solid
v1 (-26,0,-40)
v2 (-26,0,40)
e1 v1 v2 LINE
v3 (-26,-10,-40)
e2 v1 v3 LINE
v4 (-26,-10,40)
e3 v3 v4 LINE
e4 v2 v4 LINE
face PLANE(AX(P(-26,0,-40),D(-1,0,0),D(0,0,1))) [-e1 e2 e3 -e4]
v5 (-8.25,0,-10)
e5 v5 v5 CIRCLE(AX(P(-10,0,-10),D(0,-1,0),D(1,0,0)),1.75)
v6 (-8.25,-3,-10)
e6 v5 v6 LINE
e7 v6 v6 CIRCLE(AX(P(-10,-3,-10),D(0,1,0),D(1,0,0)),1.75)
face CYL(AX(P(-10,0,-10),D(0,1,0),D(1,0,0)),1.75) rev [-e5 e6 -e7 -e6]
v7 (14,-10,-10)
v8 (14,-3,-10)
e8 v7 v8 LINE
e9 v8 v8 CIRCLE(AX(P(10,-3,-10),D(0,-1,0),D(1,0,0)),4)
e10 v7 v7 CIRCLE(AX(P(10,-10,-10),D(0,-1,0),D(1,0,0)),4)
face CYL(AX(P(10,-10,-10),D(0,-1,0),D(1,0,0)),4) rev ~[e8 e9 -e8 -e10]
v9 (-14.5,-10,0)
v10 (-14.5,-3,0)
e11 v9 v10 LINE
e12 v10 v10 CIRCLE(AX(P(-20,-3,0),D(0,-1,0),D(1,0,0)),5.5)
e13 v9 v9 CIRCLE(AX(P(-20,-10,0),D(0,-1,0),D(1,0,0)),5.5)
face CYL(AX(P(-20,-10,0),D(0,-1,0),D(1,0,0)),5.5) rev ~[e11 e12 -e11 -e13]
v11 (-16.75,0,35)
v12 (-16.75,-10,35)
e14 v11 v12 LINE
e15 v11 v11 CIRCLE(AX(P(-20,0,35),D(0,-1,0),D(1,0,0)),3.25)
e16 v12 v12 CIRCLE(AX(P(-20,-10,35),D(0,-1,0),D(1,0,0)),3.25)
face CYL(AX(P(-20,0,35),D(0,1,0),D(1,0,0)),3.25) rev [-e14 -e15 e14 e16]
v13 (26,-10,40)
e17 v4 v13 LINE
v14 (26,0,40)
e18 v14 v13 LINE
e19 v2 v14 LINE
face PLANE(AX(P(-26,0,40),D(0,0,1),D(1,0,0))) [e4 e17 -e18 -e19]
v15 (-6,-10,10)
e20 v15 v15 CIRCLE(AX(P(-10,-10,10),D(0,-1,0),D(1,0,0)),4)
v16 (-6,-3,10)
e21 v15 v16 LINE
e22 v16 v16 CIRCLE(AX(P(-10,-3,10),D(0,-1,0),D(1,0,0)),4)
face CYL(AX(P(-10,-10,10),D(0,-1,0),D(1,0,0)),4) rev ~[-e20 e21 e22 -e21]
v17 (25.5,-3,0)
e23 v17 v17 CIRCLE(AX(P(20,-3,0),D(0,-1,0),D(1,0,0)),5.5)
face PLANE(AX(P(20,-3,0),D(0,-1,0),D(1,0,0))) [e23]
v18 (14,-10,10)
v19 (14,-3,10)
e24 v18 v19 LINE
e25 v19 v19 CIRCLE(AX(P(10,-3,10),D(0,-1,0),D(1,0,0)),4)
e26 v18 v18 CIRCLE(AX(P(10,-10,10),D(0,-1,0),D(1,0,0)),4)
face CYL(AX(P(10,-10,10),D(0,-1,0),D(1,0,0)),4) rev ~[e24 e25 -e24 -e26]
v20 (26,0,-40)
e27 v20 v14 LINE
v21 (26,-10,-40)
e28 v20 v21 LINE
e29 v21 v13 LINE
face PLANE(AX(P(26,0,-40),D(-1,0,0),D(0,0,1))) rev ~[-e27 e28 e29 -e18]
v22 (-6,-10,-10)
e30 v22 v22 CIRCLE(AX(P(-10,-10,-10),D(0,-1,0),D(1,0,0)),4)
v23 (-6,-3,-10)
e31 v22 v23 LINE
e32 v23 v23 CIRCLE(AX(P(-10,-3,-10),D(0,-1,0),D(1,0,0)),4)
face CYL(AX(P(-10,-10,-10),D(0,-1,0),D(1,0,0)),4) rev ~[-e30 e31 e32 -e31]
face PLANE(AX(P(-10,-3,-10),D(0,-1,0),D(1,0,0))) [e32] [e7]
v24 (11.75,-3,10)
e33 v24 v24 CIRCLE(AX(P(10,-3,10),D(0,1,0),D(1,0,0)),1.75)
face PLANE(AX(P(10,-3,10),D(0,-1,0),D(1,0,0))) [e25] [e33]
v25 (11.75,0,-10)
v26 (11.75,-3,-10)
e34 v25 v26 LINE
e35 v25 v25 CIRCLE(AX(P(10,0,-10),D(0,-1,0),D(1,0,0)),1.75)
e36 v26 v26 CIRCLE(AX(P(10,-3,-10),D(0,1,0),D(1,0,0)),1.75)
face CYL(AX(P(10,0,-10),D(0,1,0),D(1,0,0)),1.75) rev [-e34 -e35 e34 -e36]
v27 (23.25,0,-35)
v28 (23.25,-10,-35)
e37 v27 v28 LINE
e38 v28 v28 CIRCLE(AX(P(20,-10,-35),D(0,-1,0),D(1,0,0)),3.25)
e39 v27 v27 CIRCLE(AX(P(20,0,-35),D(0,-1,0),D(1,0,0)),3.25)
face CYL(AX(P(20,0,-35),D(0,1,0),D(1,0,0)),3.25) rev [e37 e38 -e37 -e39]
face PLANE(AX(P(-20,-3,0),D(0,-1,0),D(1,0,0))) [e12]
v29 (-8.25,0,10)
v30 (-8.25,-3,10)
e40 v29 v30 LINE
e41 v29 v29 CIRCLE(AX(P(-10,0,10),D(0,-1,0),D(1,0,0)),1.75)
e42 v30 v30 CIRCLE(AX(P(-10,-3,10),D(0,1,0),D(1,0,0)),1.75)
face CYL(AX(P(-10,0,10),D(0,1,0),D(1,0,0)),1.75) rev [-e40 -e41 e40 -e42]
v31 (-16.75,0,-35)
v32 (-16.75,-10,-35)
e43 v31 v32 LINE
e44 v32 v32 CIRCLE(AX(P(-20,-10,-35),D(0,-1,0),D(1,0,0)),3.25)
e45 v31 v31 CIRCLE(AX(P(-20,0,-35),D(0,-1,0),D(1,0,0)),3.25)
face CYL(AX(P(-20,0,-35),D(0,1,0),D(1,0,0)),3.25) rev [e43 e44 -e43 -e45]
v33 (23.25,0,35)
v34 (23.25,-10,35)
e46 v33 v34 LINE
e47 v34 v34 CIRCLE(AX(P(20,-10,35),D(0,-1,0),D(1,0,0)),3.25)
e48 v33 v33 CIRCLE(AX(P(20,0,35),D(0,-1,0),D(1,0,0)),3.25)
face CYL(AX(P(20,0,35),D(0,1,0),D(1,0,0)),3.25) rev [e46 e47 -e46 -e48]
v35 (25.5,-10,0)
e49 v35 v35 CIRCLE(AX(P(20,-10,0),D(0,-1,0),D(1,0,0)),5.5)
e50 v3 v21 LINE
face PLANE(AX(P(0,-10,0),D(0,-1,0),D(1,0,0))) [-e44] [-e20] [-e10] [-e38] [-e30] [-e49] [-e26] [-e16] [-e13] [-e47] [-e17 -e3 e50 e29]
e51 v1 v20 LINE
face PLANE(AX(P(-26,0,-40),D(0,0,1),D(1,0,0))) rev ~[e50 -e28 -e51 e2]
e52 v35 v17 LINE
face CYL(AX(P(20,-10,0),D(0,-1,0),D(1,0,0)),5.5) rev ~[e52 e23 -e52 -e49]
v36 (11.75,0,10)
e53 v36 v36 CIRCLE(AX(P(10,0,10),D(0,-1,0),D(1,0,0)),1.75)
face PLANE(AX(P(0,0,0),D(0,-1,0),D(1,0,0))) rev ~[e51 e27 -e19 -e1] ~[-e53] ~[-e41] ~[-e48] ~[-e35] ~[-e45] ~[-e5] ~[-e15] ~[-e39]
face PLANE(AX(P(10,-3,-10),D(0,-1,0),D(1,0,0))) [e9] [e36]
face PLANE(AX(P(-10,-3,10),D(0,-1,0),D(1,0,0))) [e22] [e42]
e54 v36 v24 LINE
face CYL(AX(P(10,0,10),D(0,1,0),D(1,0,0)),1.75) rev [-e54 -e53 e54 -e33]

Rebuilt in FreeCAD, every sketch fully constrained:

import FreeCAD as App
import Part
import Sketcher


def add_polygon(sketch, points):
    """Adds a closed chain of lines whose ends are joined by coincident constraints."""
    first, n = sketch.GeometryCount, len(points)
    for a, b in zip(points, points[1:] + points[:1]):
        sketch.addGeometry(Part.LineSegment(App.Vector(*a, 0), App.Vector(*b, 0)), False)
    for i in range(n):
        sketch.addConstraint(Sketcher.Constraint("Coincident", first + i, 2, first + (i + 1) % n, 1))

doc = App.newDocument("Part")
body = doc.addObject("PartDesign::Body", "Body")

sketch1 = body.newObject("Sketcher::SketchObject", "Sketch")
sketch1.AttachmentSupport = (doc.getObject("XZ_Plane"), [""])
sketch1.MapMode = "FlatFace"
add_polygon(sketch1, [(-26, 40), (-26, -40), (26, -40), (26, 40)])
sketch1.addGeometry(Part.Circle(App.Vector(-20, -35, 0), App.Vector(0, 0, 1), 3.2), False)
sketch1.addGeometry(Part.Circle(App.Vector(-10, -10, 0), App.Vector(0, 0, 1), 1.8), False)
sketch1.addGeometry(Part.Circle(App.Vector(20, -35, 0), App.Vector(0, 0, 1), 3.2), False)
sketch1.addGeometry(Part.Circle(App.Vector(10, -10, 0), App.Vector(0, 0, 1), 1.8), False)
sketch1.addGeometry(Part.Circle(App.Vector(-10, 10, 0), App.Vector(0, 0, 1), 1.8), False)
sketch1.addGeometry(Part.Circle(App.Vector(-20, 35, 0), App.Vector(0, 0, 1), 3.2), False)
sketch1.addGeometry(Part.Circle(App.Vector(10, 10, 0), App.Vector(0, 0, 1), 1.8), False)
sketch1.addGeometry(Part.Circle(App.Vector(20, 35, 0), App.Vector(0, 0, 1), 3.2), False)
sketch1.addConstraint([
    Sketcher.Constraint("Vertical", 0),
    Sketcher.Constraint("Horizontal", 1),
    Sketcher.Constraint("Vertical", 2),
    Sketcher.Constraint("Horizontal", 3),
    Sketcher.Constraint("Equal", 4, 6),
    Sketcher.Constraint("Equal", 5, 7),
    Sketcher.Constraint("Equal", 7, 8),
    Sketcher.Constraint("Equal", 6, 9),
    Sketcher.Constraint("Equal", 8, 10),
    Sketcher.Constraint("Equal", 9, 11),
    Sketcher.Constraint("Symmetric", 7, 3, 8, 3, -1, 1),
    Sketcher.Constraint("Symmetric", 6, 3, 9, 3, -1, 1),
    Sketcher.Constraint("Symmetric", 5, 3, 10, 3, -1, 1),
    Sketcher.Constraint("Symmetric", 4, 3, 11, 3, -1, 1),
    Sketcher.Constraint("Symmetric", 0, 2, 2, 2, -1, 1),
    Sketcher.Constraint("Symmetric", 4, 3, 6, 3, -2),
    Sketcher.Constraint("Symmetric", 5, 3, 7, 3, -2),
    Sketcher.Constraint("Diameter", 4, 6.5),
    Sketcher.Constraint("Diameter", 5, 3.5),
    Sketcher.Constraint("DistanceX", 1, 1, 1, 2, 52.0),
    Sketcher.Constraint("DistanceY", 0, 2, 0, 1, 80.0),
    Sketcher.Constraint("DistanceX", 4, 3, -1, 1, 20.0),
    Sketcher.Constraint("DistanceY", 4, 3, -1, 1, 35.0),
    Sketcher.Constraint("DistanceX", 5, 3, -1, 1, 10.0),
    Sketcher.Constraint("DistanceY", 5, 3, -1, 1, 10.0),
])
pad1 = body.newObject("PartDesign::Pad", "Pad")
pad1.Profile = sketch1
pad1.Length = 10

sketch2 = body.newObject("Sketcher::SketchObject", "Sketch001")
sketch2.AttachmentSupport = (doc.getObject("XZ_Plane"), [""])
sketch2.MapMode = "FlatFace"
sketch2.AttachmentOffset = App.Placement(App.Vector(0, 0, 10), App.Rotation())
sketch2.addGeometry([
    Part.Circle(App.Vector(-20, 0, 0), App.Vector(0, 0, 1), 6),
    Part.Circle(App.Vector(20, 0, 0), App.Vector(0, 0, 1), 6),
], False)
sketch2.addConstraint([
    Sketcher.Constraint("Equal", 0, 1),
    Sketcher.Constraint("Symmetric", 0, 3, 1, 3, -1, 1),
    Sketcher.Constraint("PointOnObject", 0, 3, -1),
    Sketcher.Constraint("Diameter", 0, 11.0),
    Sketcher.Constraint("DistanceX", 0, 3, -1, 1, 20.0),
])
pocket1 = body.newObject("PartDesign::Pocket", "Pocket")
pocket1.Profile = sketch2
pocket1.Length = 7

sketch3 = body.newObject("Sketcher::SketchObject", "Sketch002")
sketch3.AttachmentSupport = (doc.getObject("XZ_Plane"), [""])
sketch3.MapMode = "FlatFace"
sketch3.AttachmentOffset = App.Placement(App.Vector(0, 0, 10), App.Rotation())
sketch3.addGeometry([
    Part.Circle(App.Vector(-10, 10, 0), App.Vector(0, 0, 1), 4),
    Part.Circle(App.Vector(10, 10, 0), App.Vector(0, 0, 1), 4),
    Part.Circle(App.Vector(-10, -10, 0), App.Vector(0, 0, 1), 4),
    Part.Circle(App.Vector(10, -10, 0), App.Vector(0, 0, 1), 4),
], False)
sketch3.addConstraint([
    Sketcher.Constraint("Equal", 0, 1),
    Sketcher.Constraint("Equal", 1, 2),
    Sketcher.Constraint("Equal", 2, 3),
    Sketcher.Constraint("Symmetric", 1, 3, 2, 3, -1, 1),
    Sketcher.Constraint("Symmetric", 0, 3, 3, 3, -1, 1),
    Sketcher.Constraint("Symmetric", 0, 3, 1, 3, -2),
    Sketcher.Constraint("Diameter", 0, 8.0),
    Sketcher.Constraint("DistanceX", 0, 3, -1, 1, 10.0),
    Sketcher.Constraint("DistanceY", -1, 1, 0, 3, 10.0),
])
pocket2 = body.newObject("PartDesign::Pocket", "Pocket001")
pocket2.Profile = sketch3
pocket2.Length = 7

doc.recompute()
